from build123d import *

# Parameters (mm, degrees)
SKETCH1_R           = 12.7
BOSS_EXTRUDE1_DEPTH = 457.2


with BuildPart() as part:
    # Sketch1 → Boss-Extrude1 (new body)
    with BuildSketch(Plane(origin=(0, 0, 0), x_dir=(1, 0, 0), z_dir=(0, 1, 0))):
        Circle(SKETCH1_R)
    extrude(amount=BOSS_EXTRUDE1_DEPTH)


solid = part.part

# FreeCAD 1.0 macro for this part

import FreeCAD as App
import Part
import Sketcher
from FreeCAD import Vector
Q = App.Units.Quantity

doc = App.newDocument("Part")
body = doc.addObject("PartDesign::Body", "Body")

sketch1 = doc.addObject("Sketcher::SketchObject", "Sketch")
body.addObject(sketch1)
sketch1.AttachmentSupport = (doc.XZ_Plane, [""])
sketch1.MapMode = "FlatFace"
sketch1.addGeometry(Part.Circle(Vector(0, 0, 0), Vector(0, 0, 1), 13), False)
sketch1.addConstraint(Sketcher.Constraint("Coincident", 0, 3, -1, 1))
sketch1.addConstraint(Sketcher.Constraint("Diameter", 0, Q("1 in")))
pad1 = doc.addObject("PartDesign::Pad", "Pad")
body.addObject(pad1)
pad1.Profile = sketch1
pad1.Length = Q("18 in")
pad1.Reversed = True

doc.recompute()
